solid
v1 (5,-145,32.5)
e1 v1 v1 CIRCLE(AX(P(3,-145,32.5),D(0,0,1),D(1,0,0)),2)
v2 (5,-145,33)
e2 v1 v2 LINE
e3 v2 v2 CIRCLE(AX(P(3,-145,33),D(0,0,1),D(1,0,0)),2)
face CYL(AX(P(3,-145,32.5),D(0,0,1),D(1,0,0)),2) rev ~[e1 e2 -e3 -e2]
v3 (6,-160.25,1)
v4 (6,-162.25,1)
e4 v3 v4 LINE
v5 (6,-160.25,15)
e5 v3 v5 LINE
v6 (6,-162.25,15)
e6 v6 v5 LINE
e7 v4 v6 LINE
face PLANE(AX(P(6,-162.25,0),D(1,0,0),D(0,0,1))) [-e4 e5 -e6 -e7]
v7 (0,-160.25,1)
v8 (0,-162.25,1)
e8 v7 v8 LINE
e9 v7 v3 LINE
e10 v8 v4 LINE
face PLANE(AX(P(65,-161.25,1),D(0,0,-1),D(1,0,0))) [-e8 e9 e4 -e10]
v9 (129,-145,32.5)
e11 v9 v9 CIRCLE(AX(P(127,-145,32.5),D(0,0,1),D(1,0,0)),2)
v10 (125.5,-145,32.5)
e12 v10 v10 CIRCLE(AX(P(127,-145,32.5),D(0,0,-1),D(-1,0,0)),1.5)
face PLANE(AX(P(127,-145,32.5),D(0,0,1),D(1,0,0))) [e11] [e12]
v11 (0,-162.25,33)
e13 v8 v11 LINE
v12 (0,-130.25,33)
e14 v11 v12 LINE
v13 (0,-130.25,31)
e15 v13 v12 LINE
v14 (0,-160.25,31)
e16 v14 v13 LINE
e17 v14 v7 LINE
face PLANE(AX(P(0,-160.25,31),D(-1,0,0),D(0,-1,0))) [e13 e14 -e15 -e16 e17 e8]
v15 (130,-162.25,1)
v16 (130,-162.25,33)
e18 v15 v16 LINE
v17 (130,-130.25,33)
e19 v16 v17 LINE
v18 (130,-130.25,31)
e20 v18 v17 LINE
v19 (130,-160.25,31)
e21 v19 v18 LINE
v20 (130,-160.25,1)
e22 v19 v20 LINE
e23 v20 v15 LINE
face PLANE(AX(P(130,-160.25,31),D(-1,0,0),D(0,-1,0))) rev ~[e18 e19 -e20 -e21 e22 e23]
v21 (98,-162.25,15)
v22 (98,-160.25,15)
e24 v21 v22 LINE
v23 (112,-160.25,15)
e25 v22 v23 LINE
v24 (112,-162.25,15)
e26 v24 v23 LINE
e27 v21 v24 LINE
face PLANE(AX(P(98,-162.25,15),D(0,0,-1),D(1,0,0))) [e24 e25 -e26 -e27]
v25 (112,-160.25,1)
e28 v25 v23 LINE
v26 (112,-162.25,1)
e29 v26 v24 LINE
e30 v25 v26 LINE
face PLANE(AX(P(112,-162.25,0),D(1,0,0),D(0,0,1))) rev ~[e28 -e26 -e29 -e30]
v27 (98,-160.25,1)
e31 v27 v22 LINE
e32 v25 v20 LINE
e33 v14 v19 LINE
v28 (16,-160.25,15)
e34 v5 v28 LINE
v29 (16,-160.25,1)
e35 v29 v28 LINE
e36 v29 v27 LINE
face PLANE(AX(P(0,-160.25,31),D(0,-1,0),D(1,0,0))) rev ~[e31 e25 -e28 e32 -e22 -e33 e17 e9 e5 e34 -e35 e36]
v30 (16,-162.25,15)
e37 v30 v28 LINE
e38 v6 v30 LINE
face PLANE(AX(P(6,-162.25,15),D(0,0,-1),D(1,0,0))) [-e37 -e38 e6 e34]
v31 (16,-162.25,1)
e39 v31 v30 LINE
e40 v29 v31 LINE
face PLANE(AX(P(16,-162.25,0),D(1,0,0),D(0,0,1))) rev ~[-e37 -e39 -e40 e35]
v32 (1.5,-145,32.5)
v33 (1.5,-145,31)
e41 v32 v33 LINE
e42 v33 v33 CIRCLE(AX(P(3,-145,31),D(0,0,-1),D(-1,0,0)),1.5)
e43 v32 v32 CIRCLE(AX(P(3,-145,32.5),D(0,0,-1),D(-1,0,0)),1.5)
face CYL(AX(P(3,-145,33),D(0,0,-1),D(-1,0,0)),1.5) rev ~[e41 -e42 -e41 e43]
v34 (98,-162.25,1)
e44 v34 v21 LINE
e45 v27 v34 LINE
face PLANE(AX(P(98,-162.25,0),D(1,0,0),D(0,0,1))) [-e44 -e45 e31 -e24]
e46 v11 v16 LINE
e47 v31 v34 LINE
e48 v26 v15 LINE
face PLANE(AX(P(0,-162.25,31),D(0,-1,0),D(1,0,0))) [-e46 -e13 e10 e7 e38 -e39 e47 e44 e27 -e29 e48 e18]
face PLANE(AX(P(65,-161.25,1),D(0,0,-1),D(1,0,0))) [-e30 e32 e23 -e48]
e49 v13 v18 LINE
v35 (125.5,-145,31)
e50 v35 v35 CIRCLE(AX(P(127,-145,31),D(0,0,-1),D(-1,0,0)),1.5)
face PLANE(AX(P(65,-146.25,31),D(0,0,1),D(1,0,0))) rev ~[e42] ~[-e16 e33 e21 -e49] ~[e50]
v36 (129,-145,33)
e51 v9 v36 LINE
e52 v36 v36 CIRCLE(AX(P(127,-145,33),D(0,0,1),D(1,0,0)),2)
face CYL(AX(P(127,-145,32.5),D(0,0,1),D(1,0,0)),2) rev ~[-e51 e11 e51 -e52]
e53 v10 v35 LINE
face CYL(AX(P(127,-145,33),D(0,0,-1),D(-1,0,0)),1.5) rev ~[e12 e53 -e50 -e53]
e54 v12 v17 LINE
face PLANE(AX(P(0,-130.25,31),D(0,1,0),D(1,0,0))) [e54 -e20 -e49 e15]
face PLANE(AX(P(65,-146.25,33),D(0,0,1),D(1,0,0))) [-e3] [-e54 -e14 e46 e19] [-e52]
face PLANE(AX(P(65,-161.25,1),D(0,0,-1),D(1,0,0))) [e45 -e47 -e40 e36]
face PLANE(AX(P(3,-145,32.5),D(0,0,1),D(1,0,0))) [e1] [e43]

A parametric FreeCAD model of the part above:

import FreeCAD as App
import Part
import Sketcher
from FreeCAD import Vector


def add_polygon(sketch, points):
    """Adds a closed chain of lines whose ends are joined by coincident constraints."""
    first, n = sketch.GeometryCount, len(points)
    for a, b in zip(points, points[1:] + points[:1]):
        sketch.addGeometry(Part.LineSegment(App.Vector(*a, 0), App.Vector(*b, 0)), False)
    for i in range(n):
        sketch.addConstraint(Sketcher.Constraint("Coincident", first + i, 2, first + (i + 1) % n, 1))

doc = App.newDocument("Part")
params = doc.addObject("Spreadsheet::Sheet", "Params")
for row, (alias, value) in enumerate([
    ("sketch1_width", "130 mm"),
    ("sketch1_height", "32 mm"),
    ("pad1_length", "2 mm"),
    ("sketch2_diameter", "3 mm"),
    ("hole_diameter", "3 mm"),
    ("hole_depth", "25 mm"),
    ("hole_cbore_diameter", "4 mm"),
    ("hole_cbore_depth", "0.5 mm"),
    ("sketch3_width", "130 mm"),
    ("sketch3_height", "2 mm"),
    ("pad2_length", "30 mm"),
    ("sketch4_width", "10 mm"),
    ("sketch4_width2", "14 mm"),
    ("sketch4_height", "15 mm"),
    ("pocket1_length", "5 mm"),
], start=1):
    params.set(f"A{row}", alias)
    params.set(f"B{row}", "=" + value)
    params.setAlias(f"B{row}", alias)

body = doc.addObject("PartDesign::Body", "Body")

sketch1 = body.newObject("Sketcher::SketchObject", "Sketch")
sketch1.AttachmentSupport = (doc.getObject("XY_Plane"), [""])
sketch1.MapMode = "FlatFace"
sketch1.AttachmentOffset = App.Placement(Vector(0, 0, 31), App.Rotation())
add_polygon(sketch1, [(0, -130), (0, -162), (130, -162), (130, -130)])
sketch1.addConstraint(Sketcher.Constraint("Vertical", 0))
sketch1.addConstraint(Sketcher.Constraint("Horizontal", 1))
sketch1.addConstraint(Sketcher.Constraint("Vertical", 2))
sketch1.addConstraint(Sketcher.Constraint("Horizontal", 3))
sketch1.addConstraint(Sketcher.Constraint("PointOnObject", 0, 2, -2))
sketch1.addConstraint(Sketcher.Constraint("DistanceX", 1, 1, 1, 2, 130.0))
sketch1.addConstraint(Sketcher.Constraint("DistanceY", 0, 2, 0, 1, 32.0))
sketch1.addConstraint(Sketcher.Constraint("DistanceY", 0, 2, -1, 1, 162.25))
sketch1.setExpression("Constraints[9]", "Params.sketch1_width")
sketch1.setExpression("Constraints[10]", "Params.sketch1_height")
pad1 = body.newObject("PartDesign::Pad", "Pad")
pad1.Profile = sketch1
pad1.setExpression("Length", "Params.pad1_length")

sketch2 = body.newObject("Sketcher::SketchObject", "Sketch001")
sketch2.AttachmentSupport = (doc.getObject("XY_Plane"), [""])
sketch2.MapMode = "FlatFace"
sketch2.AttachmentOffset = App.Placement(Vector(0, 0, 33), App.Rotation())
sketch2.addGeometry(Part.Circle(Vector(3, -145, 0), Vector(0, 0, 1), 1.5), False)
sketch2.addGeometry(Part.Circle(Vector(127, -145, 0), Vector(0, 0, 1), 1.5), False)
sketch2.addConstraint(Sketcher.Constraint("Equal", 0, 1))
sketch2.addConstraint(Sketcher.Constraint("Horizontal", 0, 3, 1, 3))
sketch2.addConstraint(Sketcher.Constraint("Diameter", 0, 3.0))
sketch2.addConstraint(Sketcher.Constraint("DistanceX", -1, 1, 0, 3, 3.0))
sketch2.addConstraint(Sketcher.Constraint("DistanceY", 0, 3, -1, 1, 145.0))
sketch2.addConstraint(Sketcher.Constraint("DistanceX", -1, 1, 1, 3, 127.0))
sketch2.setExpression("Constraints[2]", "Params.sketch2_diameter")
doc.recompute()
hole = body.newObject("PartDesign::Hole", "Hole")
hole.Profile = sketch2
hole.ThreadType = "None"
hole.setExpression("Diameter", "Params.hole_diameter")
hole.DepthType = "Dimension"
hole.setExpression("Depth", "Params.hole_depth")
hole.DrillPoint = "Flat"
hole.HoleCutType = "Counterbore"
hole.setExpression("HoleCutDiameter", "Params.hole_cbore_diameter")
hole.setExpression("HoleCutDepth", "Params.hole_cbore_depth")

sketch3 = body.newObject("Sketcher::SketchObject", "Sketch002")
sketch3.AttachmentSupport = (doc.getObject("XY_Plane"), [""])
sketch3.MapMode = "FlatFace"
sketch3.AttachmentOffset = App.Placement(Vector(0, 0, 31), App.Rotation())
add_polygon(sketch3, [(0, -162.2), (0, -160.2), (130, -160.2), (130, -162.2)])
sketch3.addConstraint(Sketcher.Constraint("Vertical", 0))
sketch3.addConstraint(Sketcher.Constraint("Horizontal", 1))
sketch3.addConstraint(Sketcher.Constraint("Vertical", 2))
sketch3.addConstraint(Sketcher.Constraint("Horizontal", 3))
sketch3.addConstraint(Sketcher.Constraint("PointOnObject", 0, 2, -2))
sketch3.addConstraint(Sketcher.Constraint("DistanceX", 1, 1, 1, 2, 130.0))
sketch3.addConstraint(Sketcher.Constraint("DistanceY", 0, 1, 0, 2, 2.0))
sketch3.addConstraint(Sketcher.Constraint("DistanceY", 0, 2, -1, 1, 160.25))
sketch3.setExpression("Constraints[9]", "Params.sketch3_width")
sketch3.setExpression("Constraints[10]", "Params.sketch3_height")
pad2 = body.newObject("PartDesign::Pad", "Pad001")
pad2.Profile = sketch3
pad2.setExpression("Length", "Params.pad2_length")
pad2.Reversed = True

sketch4 = body.newObject("Sketcher::SketchObject", "Sketch003")
sketch4.AttachmentSupport = (doc.getObject("XZ_Plane"), [""])
sketch4.MapMode = "FlatFace"
sketch4.AttachmentOffset = App.Placement(Vector(0, 0, 162.25), App.Rotation())
add_polygon(sketch4, [(6, 15), (6, 0), (16, 0), (16, 15)])
add_polygon(sketch4, [(98, 15), (98, 0), (112, 0), (112, 15)])
sketch4.addConstraint(Sketcher.Constraint("Vertical", 0))
sketch4.addConstraint(Sketcher.Constraint("Horizontal", 1))
sketch4.addConstraint(Sketcher.Constraint("Vertical", 2))
sketch4.addConstraint(Sketcher.Constraint("Horizontal", 3))
sketch4.addConstraint(Sketcher.Constraint("Vertical", 4))
sketch4.addConstraint(Sketcher.Constraint("Horizontal", 5))
sketch4.addConstraint(Sketcher.Constraint("Vertical", 6))
sketch4.addConstraint(Sketcher.Constraint("Horizontal", 7))
sketch4.addConstraint(Sketcher.Constraint("PointOnObject", 0, 2, -1))
sketch4.addConstraint(Sketcher.Constraint("PointOnObject", 4, 2, -1))
sketch4.addConstraint(Sketcher.Constraint("Horizontal", 3, 2, 6, 2))
sketch4.addConstraint(Sketcher.Constraint("DistanceX", 1, 1, 1, 2, 10.0))
sketch4.addConstraint(Sketcher.Constraint("DistanceX", 5, 1, 5, 2, 14.0))
sketch4.addConstraint(Sketcher.Constraint("DistanceY", 0, 2, 0, 1, 15.0))
sketch4.addConstraint(Sketcher.Constraint("DistanceX", -1, 1, 0, 2, 6.0))
sketch4.addConstraint(Sketcher.Constraint("DistanceX", -1, 1, 4, 2, 98.0))
sketch4.setExpression("Constraints[19]", "Params.sketch4_width")
sketch4.setExpression("Constraints[20]", "Params.sketch4_width2")
sketch4.setExpression("Constraints[21]", "Params.sketch4_height")
pocket1 = body.newObject("PartDesign::Pocket", "Pocket")
pocket1.Profile = sketch4
pocket1.setExpression("Length", "Params.pocket1_length")

doc.recompute()
